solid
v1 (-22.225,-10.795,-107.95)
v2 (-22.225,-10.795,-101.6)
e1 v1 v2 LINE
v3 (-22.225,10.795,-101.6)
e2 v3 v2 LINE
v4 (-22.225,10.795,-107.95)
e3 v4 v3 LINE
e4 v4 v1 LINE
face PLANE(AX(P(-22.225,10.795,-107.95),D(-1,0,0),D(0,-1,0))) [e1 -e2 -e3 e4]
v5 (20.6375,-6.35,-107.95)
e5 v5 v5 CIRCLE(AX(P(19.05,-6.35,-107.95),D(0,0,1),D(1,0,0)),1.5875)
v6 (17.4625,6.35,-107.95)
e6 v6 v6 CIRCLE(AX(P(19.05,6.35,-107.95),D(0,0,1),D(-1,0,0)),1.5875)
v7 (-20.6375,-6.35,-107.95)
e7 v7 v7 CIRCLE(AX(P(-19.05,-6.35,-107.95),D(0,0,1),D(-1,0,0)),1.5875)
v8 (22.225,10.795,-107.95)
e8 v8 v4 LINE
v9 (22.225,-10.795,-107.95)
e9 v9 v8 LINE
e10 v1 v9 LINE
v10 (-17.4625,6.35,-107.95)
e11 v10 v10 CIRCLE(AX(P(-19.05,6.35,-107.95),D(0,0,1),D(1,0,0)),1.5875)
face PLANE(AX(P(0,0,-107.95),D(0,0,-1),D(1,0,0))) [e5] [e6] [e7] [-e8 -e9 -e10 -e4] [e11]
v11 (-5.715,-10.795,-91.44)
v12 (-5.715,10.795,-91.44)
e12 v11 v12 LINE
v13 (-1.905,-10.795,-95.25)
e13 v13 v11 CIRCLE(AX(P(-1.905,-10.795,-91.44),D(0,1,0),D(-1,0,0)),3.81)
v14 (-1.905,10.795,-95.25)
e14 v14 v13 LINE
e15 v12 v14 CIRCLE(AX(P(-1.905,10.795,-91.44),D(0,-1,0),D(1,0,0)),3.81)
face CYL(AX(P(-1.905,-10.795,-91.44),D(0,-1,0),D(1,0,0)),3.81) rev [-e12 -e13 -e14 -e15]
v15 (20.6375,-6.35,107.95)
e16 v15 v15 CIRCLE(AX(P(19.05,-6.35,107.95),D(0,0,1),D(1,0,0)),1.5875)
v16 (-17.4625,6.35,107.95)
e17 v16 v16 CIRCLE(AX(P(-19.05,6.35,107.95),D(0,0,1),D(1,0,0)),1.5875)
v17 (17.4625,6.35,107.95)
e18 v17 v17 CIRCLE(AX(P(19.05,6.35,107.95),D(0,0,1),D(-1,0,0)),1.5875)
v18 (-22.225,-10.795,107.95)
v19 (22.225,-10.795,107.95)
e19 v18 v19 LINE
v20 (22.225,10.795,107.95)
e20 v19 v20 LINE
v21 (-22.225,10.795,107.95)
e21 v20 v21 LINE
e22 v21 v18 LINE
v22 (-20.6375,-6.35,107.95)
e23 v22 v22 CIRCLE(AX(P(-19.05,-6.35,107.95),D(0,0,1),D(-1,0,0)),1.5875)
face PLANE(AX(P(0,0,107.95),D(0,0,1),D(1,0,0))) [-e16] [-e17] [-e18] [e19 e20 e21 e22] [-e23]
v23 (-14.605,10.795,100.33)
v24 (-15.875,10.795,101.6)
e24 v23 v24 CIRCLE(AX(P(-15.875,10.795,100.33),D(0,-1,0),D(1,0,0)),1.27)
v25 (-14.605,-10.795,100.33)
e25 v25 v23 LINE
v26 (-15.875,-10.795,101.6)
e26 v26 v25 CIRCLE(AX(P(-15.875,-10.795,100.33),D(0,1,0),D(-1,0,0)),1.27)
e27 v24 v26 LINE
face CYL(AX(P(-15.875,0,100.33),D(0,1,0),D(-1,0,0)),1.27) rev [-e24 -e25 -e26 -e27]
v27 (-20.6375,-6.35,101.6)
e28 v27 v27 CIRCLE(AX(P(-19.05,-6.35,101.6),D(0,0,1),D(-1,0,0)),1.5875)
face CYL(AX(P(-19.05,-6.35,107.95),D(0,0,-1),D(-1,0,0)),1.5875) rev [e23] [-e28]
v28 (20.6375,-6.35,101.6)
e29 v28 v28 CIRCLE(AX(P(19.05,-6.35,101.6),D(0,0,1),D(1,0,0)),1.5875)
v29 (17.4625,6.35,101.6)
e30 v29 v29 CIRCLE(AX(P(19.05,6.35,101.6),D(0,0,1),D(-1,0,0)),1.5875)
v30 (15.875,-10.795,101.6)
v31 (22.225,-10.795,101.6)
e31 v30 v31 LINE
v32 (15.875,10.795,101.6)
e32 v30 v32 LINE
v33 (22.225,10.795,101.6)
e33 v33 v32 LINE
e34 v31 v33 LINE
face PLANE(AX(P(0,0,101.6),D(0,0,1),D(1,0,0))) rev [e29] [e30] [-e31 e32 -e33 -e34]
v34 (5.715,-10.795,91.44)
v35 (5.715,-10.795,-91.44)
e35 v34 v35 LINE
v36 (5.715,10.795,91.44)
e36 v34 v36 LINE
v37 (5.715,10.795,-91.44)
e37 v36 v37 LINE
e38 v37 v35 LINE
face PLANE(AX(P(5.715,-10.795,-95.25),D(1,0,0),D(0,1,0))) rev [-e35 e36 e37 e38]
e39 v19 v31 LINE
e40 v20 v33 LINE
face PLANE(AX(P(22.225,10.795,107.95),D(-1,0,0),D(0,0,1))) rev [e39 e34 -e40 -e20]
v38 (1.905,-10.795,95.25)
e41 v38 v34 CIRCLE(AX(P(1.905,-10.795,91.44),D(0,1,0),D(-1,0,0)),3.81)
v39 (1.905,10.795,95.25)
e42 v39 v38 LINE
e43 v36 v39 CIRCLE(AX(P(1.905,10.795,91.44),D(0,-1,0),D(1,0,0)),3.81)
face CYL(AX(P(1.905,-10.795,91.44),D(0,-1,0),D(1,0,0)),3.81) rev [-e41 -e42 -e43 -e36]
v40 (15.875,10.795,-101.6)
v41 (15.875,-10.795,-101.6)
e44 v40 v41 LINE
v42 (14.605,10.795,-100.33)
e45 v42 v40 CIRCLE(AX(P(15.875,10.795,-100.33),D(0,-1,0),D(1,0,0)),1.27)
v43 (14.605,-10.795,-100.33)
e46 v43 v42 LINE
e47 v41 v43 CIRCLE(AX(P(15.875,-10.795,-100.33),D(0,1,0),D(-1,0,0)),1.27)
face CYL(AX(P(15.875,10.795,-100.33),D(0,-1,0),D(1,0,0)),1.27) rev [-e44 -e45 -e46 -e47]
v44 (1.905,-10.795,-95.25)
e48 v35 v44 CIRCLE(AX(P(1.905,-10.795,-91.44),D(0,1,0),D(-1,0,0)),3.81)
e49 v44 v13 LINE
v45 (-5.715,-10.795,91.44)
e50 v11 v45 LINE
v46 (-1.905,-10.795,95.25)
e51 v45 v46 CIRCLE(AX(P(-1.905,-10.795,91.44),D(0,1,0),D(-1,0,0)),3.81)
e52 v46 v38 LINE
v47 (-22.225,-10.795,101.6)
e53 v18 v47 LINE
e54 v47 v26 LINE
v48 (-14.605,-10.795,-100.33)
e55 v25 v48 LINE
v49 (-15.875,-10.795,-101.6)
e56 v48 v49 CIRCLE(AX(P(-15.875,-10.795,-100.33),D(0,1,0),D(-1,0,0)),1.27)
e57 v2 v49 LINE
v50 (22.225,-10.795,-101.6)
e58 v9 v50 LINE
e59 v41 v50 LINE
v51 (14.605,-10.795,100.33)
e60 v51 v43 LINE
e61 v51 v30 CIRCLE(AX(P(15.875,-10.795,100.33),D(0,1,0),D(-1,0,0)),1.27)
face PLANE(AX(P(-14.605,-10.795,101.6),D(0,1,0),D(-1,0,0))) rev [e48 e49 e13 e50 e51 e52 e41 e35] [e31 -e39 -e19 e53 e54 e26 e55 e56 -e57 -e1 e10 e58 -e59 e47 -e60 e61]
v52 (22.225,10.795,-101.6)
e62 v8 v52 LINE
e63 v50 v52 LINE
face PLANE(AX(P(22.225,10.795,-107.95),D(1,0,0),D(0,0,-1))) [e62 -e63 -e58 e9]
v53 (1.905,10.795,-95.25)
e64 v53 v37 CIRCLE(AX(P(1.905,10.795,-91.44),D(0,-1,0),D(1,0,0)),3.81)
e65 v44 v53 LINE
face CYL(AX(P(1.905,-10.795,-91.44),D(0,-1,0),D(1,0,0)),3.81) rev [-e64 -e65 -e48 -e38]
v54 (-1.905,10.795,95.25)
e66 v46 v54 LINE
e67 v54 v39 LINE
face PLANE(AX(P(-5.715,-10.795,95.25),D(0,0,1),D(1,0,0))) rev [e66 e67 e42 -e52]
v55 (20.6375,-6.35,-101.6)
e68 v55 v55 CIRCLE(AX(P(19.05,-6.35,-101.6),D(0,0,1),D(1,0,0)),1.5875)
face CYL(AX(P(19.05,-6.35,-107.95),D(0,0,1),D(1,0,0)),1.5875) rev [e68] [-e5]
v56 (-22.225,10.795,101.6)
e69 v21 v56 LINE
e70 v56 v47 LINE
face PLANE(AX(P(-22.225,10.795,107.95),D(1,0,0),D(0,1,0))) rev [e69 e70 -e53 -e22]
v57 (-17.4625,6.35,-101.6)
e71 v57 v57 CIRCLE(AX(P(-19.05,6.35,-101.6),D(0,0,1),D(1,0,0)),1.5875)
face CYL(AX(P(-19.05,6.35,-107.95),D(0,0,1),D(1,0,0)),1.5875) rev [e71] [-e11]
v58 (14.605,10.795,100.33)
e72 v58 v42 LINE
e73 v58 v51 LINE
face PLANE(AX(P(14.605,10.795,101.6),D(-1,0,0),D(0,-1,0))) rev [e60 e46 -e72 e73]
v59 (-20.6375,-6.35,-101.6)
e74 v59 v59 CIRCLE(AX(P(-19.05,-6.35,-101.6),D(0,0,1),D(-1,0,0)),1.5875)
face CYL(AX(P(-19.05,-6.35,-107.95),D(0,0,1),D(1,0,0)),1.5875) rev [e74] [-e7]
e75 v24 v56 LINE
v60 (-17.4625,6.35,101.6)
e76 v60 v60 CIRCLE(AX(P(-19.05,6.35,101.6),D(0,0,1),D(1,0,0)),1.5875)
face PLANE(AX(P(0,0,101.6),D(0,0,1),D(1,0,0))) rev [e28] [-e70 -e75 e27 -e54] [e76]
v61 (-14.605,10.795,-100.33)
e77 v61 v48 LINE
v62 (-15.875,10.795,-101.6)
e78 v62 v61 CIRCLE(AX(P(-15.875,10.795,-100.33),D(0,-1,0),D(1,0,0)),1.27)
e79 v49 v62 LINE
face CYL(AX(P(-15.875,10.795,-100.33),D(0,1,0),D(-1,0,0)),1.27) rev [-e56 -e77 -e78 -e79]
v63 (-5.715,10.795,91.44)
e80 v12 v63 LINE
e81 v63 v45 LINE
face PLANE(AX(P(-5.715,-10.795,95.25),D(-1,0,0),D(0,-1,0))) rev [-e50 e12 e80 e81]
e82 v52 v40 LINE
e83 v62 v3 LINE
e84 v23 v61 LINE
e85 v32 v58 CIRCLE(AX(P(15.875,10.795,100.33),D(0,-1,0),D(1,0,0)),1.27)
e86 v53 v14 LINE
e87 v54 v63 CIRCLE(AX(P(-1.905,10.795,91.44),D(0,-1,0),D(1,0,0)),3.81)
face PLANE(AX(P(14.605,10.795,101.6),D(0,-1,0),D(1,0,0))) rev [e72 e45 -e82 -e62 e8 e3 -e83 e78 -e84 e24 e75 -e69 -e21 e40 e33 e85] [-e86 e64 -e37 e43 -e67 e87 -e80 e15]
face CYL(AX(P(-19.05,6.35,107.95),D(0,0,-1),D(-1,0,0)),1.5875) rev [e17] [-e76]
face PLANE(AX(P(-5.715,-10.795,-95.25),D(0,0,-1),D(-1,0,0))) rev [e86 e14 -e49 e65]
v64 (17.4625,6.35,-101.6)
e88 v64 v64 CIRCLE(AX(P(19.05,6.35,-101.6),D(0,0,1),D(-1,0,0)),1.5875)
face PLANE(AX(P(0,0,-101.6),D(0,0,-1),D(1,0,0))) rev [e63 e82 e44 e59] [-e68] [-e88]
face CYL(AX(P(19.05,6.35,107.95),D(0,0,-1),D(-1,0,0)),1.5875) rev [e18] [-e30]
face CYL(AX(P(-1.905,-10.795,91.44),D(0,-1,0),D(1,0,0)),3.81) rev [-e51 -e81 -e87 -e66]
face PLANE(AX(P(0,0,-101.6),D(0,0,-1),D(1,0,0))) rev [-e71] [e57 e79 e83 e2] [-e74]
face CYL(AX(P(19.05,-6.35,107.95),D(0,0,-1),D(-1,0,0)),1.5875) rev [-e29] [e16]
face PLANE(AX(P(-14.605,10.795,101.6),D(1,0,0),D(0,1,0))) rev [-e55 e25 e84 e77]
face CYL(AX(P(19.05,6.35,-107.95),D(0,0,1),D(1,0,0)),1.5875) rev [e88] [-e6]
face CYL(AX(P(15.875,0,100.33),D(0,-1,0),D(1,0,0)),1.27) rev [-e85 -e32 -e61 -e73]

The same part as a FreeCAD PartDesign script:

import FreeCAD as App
import Part
import Sketcher

V = App.Vector
Q = App.Units.Quantity


def edges_at(feature, points):
    """Names of the edges that pass closest to the given points."""
    edges = feature.Shape.Edges
    near = lambda p: min(range(len(edges)), key=lambda i: edges[i].distToShape(Part.Vertex(*p))[0])
    return sorted({f"Edge{near(p) + 1}" for p in points})

doc = App.newDocument("Part")
params = doc.addObject("Spreadsheet::Sheet", "Params")
for row, (alias, value) in enumerate([
    ("sketch1_width", "1.15 in"),
    ("sketch1_height", "0.85 in"),
    ("pad1_length", "8 in"),
    ("sketch2_diameter", "0.125 in"),
    ("sketch2_width", "1.75 in"),
    ("sketch2_height", "0.85 in"),
    ("pad2_length", "0.25 in"),
    ("fillet_radius", "0.05 in"),
    ("sketch3_height", "7.5 in"),
    ("sketch3_width", "0.45 in"),
    ("fillet2_radius", "0.15 in"),
], start=1):
    params.set(f"A{row}", alias)
    params.set(f"B{row}", "=" + value)
    params.setAlias(f"B{row}", alias)

body = doc.addObject("PartDesign::Body", "Body")

sketch1 = doc.addObject("Sketcher::SketchObject", "Sketch")
body.addObject(sketch1)
sketch1.AttachmentSupport = (doc.XY_Plane, [""])
sketch1.MapMode = "FlatFace"
sketch1.addGeometry([
    Part.LineSegment(V(-15, 11, 0), V(-15, -11, 0)),
    Part.LineSegment(V(-15, -11, 0), V(15, -11, 0)),
    Part.LineSegment(V(15, -11, 0), V(15, 11, 0)),
    Part.LineSegment(V(15, 11, 0), V(-15, 11, 0)),
], False)
sketch1.addConstraint([
    Sketcher.Constraint("Coincident", 0, 2, 1, 1),
    Sketcher.Constraint("Coincident", 1, 2, 2, 1),
    Sketcher.Constraint("Coincident", 2, 2, 3, 1),
    Sketcher.Constraint("Coincident", 3, 2, 0, 1),
    Sketcher.Constraint("Vertical", 0),
    Sketcher.Constraint("Horizontal", 1),
    Sketcher.Constraint("Vertical", 2),
    Sketcher.Constraint("Horizontal", 3),
    Sketcher.Constraint("Symmetric", 0, 2, 2, 2, -1, 1),
    Sketcher.Constraint("DistanceX", 1, 1, 1, 2, Q("1.15 in")),
    Sketcher.Constraint("DistanceY", 0, 2, 0, 1, Q("0.85 in")),
])
sketch1.setExpression("Constraints[9]", "Params.sketch1_width")
sketch1.setExpression("Constraints[10]", "Params.sketch1_height")
pad1 = doc.addObject("PartDesign::Pad", "Pad")
body.addObject(pad1)
pad1.Profile = sketch1
pad1.setExpression("Length", "Params.pad1_length")
pad1.Midplane = True

sketch2 = doc.addObject("Sketcher::SketchObject", "Sketch001")
body.addObject(sketch2)
sketch2.AttachmentSupport = (doc.XY_Plane, [""])
sketch2.MapMode = "FlatFace"
sketch2.AttachmentOffset = App.Placement(V(0, 0, 4 * 25.4), App.Rotation())
sketch2.addGeometry([
    Part.LineSegment(V(-22.2, 10.8, 0), V(-22.2, -10.8, 0)),
    Part.LineSegment(V(-22.2, -10.8, 0), V(22.2, -10.8, 0)),
    Part.LineSegment(V(22.2, -10.8, 0), V(22.2, 10.8, 0)),
    Part.LineSegment(V(22.2, 10.8, 0), V(-22.2, 10.8, 0)),
    Part.Circle(V(-19.1, -6.3, 0), V(0, 0, 1), 1.6),
    Part.Circle(V(19.1, -6.3, 0), V(0, 0, 1), 1.6),
    Part.Circle(V(-19.1, 6.3, 0), V(0, 0, 1), 1.6),
    Part.Circle(V(19.1, 6.3, 0), V(0, 0, 1), 1.6),
], False)
sketch2.addConstraint([
    Sketcher.Constraint("Coincident", 0, 2, 1, 1),
    Sketcher.Constraint("Coincident", 1, 2, 2, 1),
    Sketcher.Constraint("Coincident", 2, 2, 3, 1),
    Sketcher.Constraint("Coincident", 3, 2, 0, 1),
    Sketcher.Constraint("Vertical", 0),
    Sketcher.Constraint("Horizontal", 1),
    Sketcher.Constraint("Vertical", 2),
    Sketcher.Constraint("Horizontal", 3),
    Sketcher.Constraint("Equal", 4, 5),
    Sketcher.Constraint("Equal", 5, 6),
    Sketcher.Constraint("Equal", 6, 7),
    Sketcher.Constraint("Symmetric", 5, 3, 6, 3, -1, 1),
    Sketcher.Constraint("Symmetric", 4, 3, 7, 3, -1, 1),
    Sketcher.Constraint("Symmetric", 0, 2, 2, 2, -1, 1),
    Sketcher.Constraint("Symmetric", 4, 3, 5, 3, -2),
    Sketcher.Constraint("Diameter", 4, Q("0.125 in")),
    Sketcher.Constraint("DistanceX", 1, 1, 1, 2, Q("1.75 in")),
    Sketcher.Constraint("DistanceY", 0, 2, 0, 1, Q("0.85 in")),
    Sketcher.Constraint("DistanceX", 4, 3, 5, 3, Q("1.5 in")),
    Sketcher.Constraint("DistanceY", 4, 3, 6, 3, Q("0.5 in")),
])
sketch2.setExpression("Constraints[15]", "Params.sketch2_diameter")
sketch2.setExpression("Constraints[16]", "Params.sketch2_width")
sketch2.setExpression("Constraints[17]", "Params.sketch2_height")
pad2 = doc.addObject("PartDesign::Pad", "Pad001")
body.addObject(pad2)
pad2.Profile = sketch2
pad2.setExpression("Length", "Params.pad2_length")
doc.recompute()

mirrored = doc.addObject("PartDesign::Mirrored", "Mirrored")
body.addObject(mirrored)
mirrored.Originals = [pad2]
mirrored.MirrorPlane = (doc.XY_Plane, [""])
body.Tip = mirrored
doc.recompute()

fillet = doc.addObject("PartDesign::Fillet", "Fillet")
body.addObject(fillet)
fillet.Base = (mirrored, edges_at(mirrored, [
    (14.605, 0, 101.6),
    (-14.605, 0, 101.6),
    (14.605, 0, -101.6),
    (-14.605, 0, -101.6),
]))
fillet.setExpression("Radius", "Params.fillet_radius")

sketch3 = doc.addObject("Sketcher::SketchObject", "Sketch002")
body.addObject(sketch3)
sketch3.AttachmentSupport = (doc.XZ_Plane, [""])
sketch3.MapMode = "FlatFace"
sketch3.AttachmentOffset = App.Placement(V(0, 0, -0.425 * 25.4), App.Rotation())
sketch3.addGeometry([
    Part.LineSegment(V(-6, -95, 0), V(-6, 95, 0)),
    Part.LineSegment(V(-6, 95, 0), V(6, 95, 0)),
    Part.LineSegment(V(6, 95, 0), V(6, -95, 0)),
    Part.LineSegment(V(6, -95, 0), V(-6, -95, 0)),
], False)
sketch3.addConstraint([
    Sketcher.Constraint("Coincident", 0, 2, 1, 1),
    Sketcher.Constraint("Coincident", 1, 2, 2, 1),
    Sketcher.Constraint("Coincident", 2, 2, 3, 1),
    Sketcher.Constraint("Coincident", 3, 2, 0, 1),
    Sketcher.Constraint("Vertical", 0),
    Sketcher.Constraint("Horizontal", 1),
    Sketcher.Constraint("Vertical", 2),
    Sketcher.Constraint("Horizontal", 3),
    Sketcher.Constraint("Symmetric", 0, 2, 2, 2, -1, 1),
    Sketcher.Constraint("DistanceY", 0, 1, 0, 2, Q("7.5 in")),
    Sketcher.Constraint("DistanceX", 1, 1, 1, 2, Q("0.45 in")),
])
sketch3.setExpression("Constraints[9]", "Params.sketch3_height")
sketch3.setExpression("Constraints[10]", "Params.sketch3_width")
pocket1 = doc.addObject("PartDesign::Pocket", "Pocket")
body.addObject(pocket1)
pocket1.Profile = sketch3
pocket1.Type = "ThroughAll"
pocket1.Reversed = True
doc.recompute()

fillet2 = doc.addObject("PartDesign::Fillet", "Fillet001")
body.addObject(fillet2)
fillet2.Base = (pocket1, edges_at(pocket1, [
    (-5.715, 0, -95.25),
    (5.715, 0, -95.25),
    (5.715, 0, 95.25),
    (-5.715, 0, 95.25),
]))
fillet2.setExpression("Radius", "Params.fillet2_radius")

doc.recompute()
